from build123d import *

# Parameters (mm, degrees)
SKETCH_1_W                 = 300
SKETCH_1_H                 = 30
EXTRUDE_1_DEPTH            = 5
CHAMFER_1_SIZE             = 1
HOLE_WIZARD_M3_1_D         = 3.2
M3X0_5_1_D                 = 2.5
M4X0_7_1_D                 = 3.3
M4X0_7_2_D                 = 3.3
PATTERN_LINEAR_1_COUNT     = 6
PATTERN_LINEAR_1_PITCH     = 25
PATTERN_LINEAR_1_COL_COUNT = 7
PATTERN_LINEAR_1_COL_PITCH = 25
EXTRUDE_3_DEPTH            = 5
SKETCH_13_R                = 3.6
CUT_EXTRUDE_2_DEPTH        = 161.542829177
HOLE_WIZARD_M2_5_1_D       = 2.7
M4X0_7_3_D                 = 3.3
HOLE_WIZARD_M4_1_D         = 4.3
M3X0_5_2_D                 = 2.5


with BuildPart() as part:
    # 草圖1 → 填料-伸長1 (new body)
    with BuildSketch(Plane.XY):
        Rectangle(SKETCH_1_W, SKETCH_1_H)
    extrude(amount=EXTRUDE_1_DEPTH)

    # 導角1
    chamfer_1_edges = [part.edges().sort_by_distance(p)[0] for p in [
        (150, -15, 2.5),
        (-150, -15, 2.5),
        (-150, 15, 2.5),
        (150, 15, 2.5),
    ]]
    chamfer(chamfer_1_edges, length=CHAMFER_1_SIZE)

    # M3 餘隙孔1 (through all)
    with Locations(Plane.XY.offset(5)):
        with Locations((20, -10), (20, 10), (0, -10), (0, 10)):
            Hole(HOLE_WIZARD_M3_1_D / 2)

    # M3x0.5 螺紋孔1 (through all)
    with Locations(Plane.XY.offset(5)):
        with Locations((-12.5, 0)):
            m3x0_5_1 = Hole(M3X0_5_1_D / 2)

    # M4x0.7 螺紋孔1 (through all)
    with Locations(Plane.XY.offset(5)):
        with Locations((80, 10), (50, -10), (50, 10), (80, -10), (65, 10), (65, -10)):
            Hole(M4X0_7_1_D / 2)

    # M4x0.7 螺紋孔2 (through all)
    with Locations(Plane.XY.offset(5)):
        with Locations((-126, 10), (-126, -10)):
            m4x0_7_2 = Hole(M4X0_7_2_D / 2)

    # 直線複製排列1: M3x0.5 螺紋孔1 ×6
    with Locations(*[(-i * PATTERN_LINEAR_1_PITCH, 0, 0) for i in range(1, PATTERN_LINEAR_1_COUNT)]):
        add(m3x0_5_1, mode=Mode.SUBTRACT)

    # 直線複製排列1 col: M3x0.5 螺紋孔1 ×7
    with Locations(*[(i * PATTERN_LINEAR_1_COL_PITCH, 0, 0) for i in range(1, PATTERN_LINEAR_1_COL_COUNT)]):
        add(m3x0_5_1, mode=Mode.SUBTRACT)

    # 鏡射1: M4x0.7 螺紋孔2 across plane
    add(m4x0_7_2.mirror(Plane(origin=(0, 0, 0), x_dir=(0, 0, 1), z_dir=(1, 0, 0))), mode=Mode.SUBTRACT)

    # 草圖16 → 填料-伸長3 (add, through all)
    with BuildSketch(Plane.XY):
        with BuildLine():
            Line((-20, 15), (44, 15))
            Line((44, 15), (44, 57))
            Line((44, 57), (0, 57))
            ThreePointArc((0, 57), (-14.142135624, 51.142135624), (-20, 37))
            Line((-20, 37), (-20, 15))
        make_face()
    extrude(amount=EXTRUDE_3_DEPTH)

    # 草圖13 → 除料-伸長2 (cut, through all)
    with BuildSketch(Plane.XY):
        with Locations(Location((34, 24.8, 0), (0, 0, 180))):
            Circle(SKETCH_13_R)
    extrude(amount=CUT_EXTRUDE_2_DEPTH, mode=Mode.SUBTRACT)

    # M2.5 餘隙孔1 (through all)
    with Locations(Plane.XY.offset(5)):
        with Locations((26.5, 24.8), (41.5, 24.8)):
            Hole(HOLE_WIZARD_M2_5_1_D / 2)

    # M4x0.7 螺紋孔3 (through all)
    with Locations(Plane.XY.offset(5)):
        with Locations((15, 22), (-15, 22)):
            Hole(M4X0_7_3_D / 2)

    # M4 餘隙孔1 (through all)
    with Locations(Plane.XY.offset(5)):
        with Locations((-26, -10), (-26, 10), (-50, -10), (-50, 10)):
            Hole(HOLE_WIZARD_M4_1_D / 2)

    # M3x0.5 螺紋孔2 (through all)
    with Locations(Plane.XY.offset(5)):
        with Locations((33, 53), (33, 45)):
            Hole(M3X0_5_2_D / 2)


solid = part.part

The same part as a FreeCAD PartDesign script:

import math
import FreeCAD as App
import Part
import Sketcher

V = App.Vector


def edges_at(feature, points):
    """Names of the edges that pass closest to the given points."""
    edges = feature.Shape.Edges
    near = lambda p: min(range(len(edges)), key=lambda i: edges[i].distToShape(Part.Vertex(*p))[0])
    return sorted({f"Edge{near(p) + 1}" for p in points})


def add_polygon(sketch, points):
    """Adds a closed chain of lines whose ends are joined by coincident constraints."""
    first, n = sketch.GeometryCount, len(points)
    for a, b in zip(points, points[1:] + points[:1]):
        sketch.addGeometry(Part.LineSegment(App.Vector(*a, 0), App.Vector(*b, 0)), False)
    for i in range(n):
        sketch.addConstraint(Sketcher.Constraint("Coincident", first + i, 2, first + (i + 1) % n, 1))

doc = App.newDocument("Part")
body = doc.addObject("PartDesign::Body", "Body")

# Sketch on XY plane
sketch1 = body.newObject("Sketcher::SketchObject", "Sketch")
sketch1.AttachmentSupport = (doc.getObject("XY_Plane"), [""])
sketch1.MapMode = "FlatFace"
add_polygon(sketch1, [(-150, 15), (-150, -15), (150, -15), (150, 15)])  # lines 0-3
sketch1.addConstraint([
    Sketcher.Constraint("Vertical", 0),
    Sketcher.Constraint("Horizontal", 1),
    Sketcher.Constraint("Vertical", 2),
    Sketcher.Constraint("Horizontal", 3),
    Sketcher.Constraint("Symmetric", 0, 2, 2, 2, -1, 1),
    Sketcher.Constraint("DistanceX", 1, 1, 1, 2, 300.0),
    Sketcher.Constraint("DistanceY", 0, 2, 0, 1, 30.0),
])
pad1 = body.newObject("PartDesign::Pad", "Pad")
pad1.Profile = sketch1
pad1.Length = 5
doc.recompute()

chamfer = body.newObject("PartDesign::Chamfer", "Chamfer")
chamfer.Base = (pad1, edges_at(pad1, [
    (150, -15, 2.5),
    (-150, -15, 2.5),
    (-150, 15, 2.5),
    (150, 15, 2.5),
]))
chamfer.Size = 1

# Sketch on XY plane
sketch2 = body.newObject("Sketcher::SketchObject", "Sketch001")
sketch2.AttachmentSupport = (doc.getObject("XY_Plane"), [""])
sketch2.MapMode = "FlatFace"
sketch2.AttachmentOffset = App.Placement(V(0, 0, 5), App.Rotation())
sketch2.addGeometry([
    Part.Circle(V(20, -10, 0), V(0, 0, 1), 1.6),
    Part.Circle(V(20, 10, 0), V(0, 0, 1), 1.6),
    Part.Circle(V(0, -10, 0), V(0, 0, 1), 1.6),
    Part.Circle(V(0, 10, 0), V(0, 0, 1), 1.6),
], False)
sketch2.addConstraint([
    Sketcher.Constraint("Equal", 0, 1),
    Sketcher.Constraint("Equal", 1, 2),
    Sketcher.Constraint("Equal", 2, 3),
    Sketcher.Constraint("Symmetric", 2, 3, 3, 3, -1, 1),
    Sketcher.Constraint("Symmetric", 0, 3, 1, 3, -1),
    Sketcher.Constraint("PointOnObject", 2, 3, -2),
    Sketcher.Constraint("Horizontal", 0, 3, 2, 3),
    Sketcher.Constraint("Diameter", 0, 3.2),
    Sketcher.Constraint("DistanceX", -1, 1, 0, 3, 20.0),
    Sketcher.Constraint("DistanceY", 0, 3, -1, 1, 10.0),
])
doc.recompute()
hole = body.newObject("PartDesign::Hole", "Hole")
hole.Profile = sketch2
hole.ThreadType = "None"
hole.Diameter = 3.2
hole.DepthType = "ThroughAll"

# Sketch on XY plane
sketch3 = body.newObject("Sketcher::SketchObject", "Sketch002")
sketch3.AttachmentSupport = (doc.getObject("XY_Plane"), [""])
sketch3.MapMode = "FlatFace"
sketch3.AttachmentOffset = App.Placement(V(0, 0, 5), App.Rotation())
sketch3.addGeometry(Part.Circle(V(-12.5, 0, 0), V(0, 0, 1), 1.2), False)
sketch3.addConstraint([
    Sketcher.Constraint("PointOnObject", 0, 3, -1),
    Sketcher.Constraint("Diameter", 0, 2.5),
    Sketcher.Constraint("DistanceX", 0, 3, -1, 1, 12.5),
])
doc.recompute()
hole2 = body.newObject("PartDesign::Hole", "Hole001")
hole2.Profile = sketch3
hole2.ThreadType = "None"
hole2.Diameter = 2.5
hole2.DepthType = "ThroughAll"

# Sketch on XY plane
sketch4 = body.newObject("Sketcher::SketchObject", "Sketch003")
sketch4.AttachmentSupport = (doc.getObject("XY_Plane"), [""])
sketch4.MapMode = "FlatFace"
sketch4.AttachmentOffset = App.Placement(V(0, 0, 5), App.Rotation())
sketch4.addGeometry([
    Part.Circle(V(80, 10, 0), V(0, 0, 1), 1.6),  # 0
    Part.Circle(V(50, -10, 0), V(0, 0, 1), 1.6),  # 1
    Part.Circle(V(50, 10, 0), V(0, 0, 1), 1.6),  # 2
    Part.Circle(V(80, -10, 0), V(0, 0, 1), 1.6),  # 3
    Part.Circle(V(65, 10, 0), V(0, 0, 1), 1.6),  # 4
    Part.Circle(V(65, -10, 0), V(0, 0, 1), 1.6),  # 5
], False)
sketch4.addConstraint([
    Sketcher.Constraint("Equal", 0, 1),
    Sketcher.Constraint("Equal", 1, 2),
    Sketcher.Constraint("Equal", 2, 3),
    Sketcher.Constraint("Equal", 3, 4),
    Sketcher.Constraint("Equal", 4, 5),
    Sketcher.Constraint("Symmetric", 1, 3, 2, 3, -1),
    Sketcher.Constraint("Symmetric", 0, 3, 3, 3, -1),
    Sketcher.Constraint("Symmetric", 4, 3, 5, 3, -1),
    Sketcher.Constraint("Horizontal", 0, 3, 2, 3),
    Sketcher.Constraint("Horizontal", 2, 3, 4, 3),
    Sketcher.Constraint("Diameter", 0, 3.3),
    Sketcher.Constraint("DistanceX", -1, 1, 0, 3, 80.0),
    Sketcher.Constraint("DistanceY", -1, 1, 0, 3, 10.0),
    Sketcher.Constraint("DistanceX", -1, 1, 1, 3, 50.0),
    Sketcher.Constraint("DistanceX", -1, 1, 4, 3, 65.0),
])
doc.recompute()
hole3 = body.newObject("PartDesign::Hole", "Hole002")
hole3.Profile = sketch4
hole3.ThreadType = "None"
hole3.Diameter = 3.3
hole3.DepthType = "ThroughAll"

# Sketch on XY plane
sketch5 = body.newObject("Sketcher::SketchObject", "Sketch004")
sketch5.AttachmentSupport = (doc.getObject("XY_Plane"), [""])
sketch5.MapMode = "FlatFace"
sketch5.AttachmentOffset = App.Placement(V(0, 0, 5), App.Rotation())
sketch5.addGeometry([
    Part.Circle(V(-126, 10, 0), V(0, 0, 1), 1.6),
    Part.Circle(V(-126, -10, 0), V(0, 0, 1), 1.6),
], False)
sketch5.addConstraint([
    Sketcher.Constraint("Equal", 0, 1),
    Sketcher.Constraint("Symmetric", 0, 3, 1, 3, -1),
    Sketcher.Constraint("Diameter", 0, 3.3),
    Sketcher.Constraint("DistanceX", 0, 3, -1, 1, 126.0),
    Sketcher.Constraint("DistanceY", -1, 1, 0, 3, 10.0),
])
doc.recompute()
hole4 = body.newObject("PartDesign::Hole", "Hole003")
hole4.Profile = sketch5
hole4.ThreadType = "None"
hole4.Diameter = 3.3
hole4.DepthType = "ThroughAll"
doc.recompute()

linearpattern = body.newObject("PartDesign::LinearPattern", "LinearPattern")
linearpattern.Originals = [hole2]
linearpattern.Direction = (doc.getObject("X_Axis"), [""])
linearpattern.Mode = "offset"
linearpattern.Offset = 25
linearpattern.Occurrences = 6
linearpattern.Reversed = True
body.Tip = linearpattern
doc.recompute()

linearpattern2 = body.newObject("PartDesign::LinearPattern", "LinearPattern001")
linearpattern2.Originals = [hole2]
linearpattern2.Direction = (doc.getObject("X_Axis"), [""])
linearpattern2.Mode = "offset"
linearpattern2.Offset = 25
linearpattern2.Occurrences = 7
body.Tip = linearpattern2
doc.recompute()

mirrored = body.newObject("PartDesign::Mirrored", "Mirrored")
mirrored.Originals = [hole4]
mirrored.MirrorPlane = (doc.getObject("YZ_Plane"), [""])
body.Tip = mirrored

# Sketch on XY plane
sketch6 = body.newObject("Sketcher::SketchObject", "Sketch005")
sketch6.AttachmentSupport = (doc.getObject("XY_Plane"), [""])
sketch6.MapMode = "FlatFace"
sketch6.addGeometry([
    Part.LineSegment(V(-20, 15, 0), V(44, 15, 0)),  # 0
    Part.LineSegment(V(44, 15, 0), V(44, 57, 0)),  # 1
    Part.LineSegment(V(44, 57, 0), V(0, 57, 0)),  # 2
    Part.ArcOfCircle(Part.Circle(V(0, 37, 0), V(0, 0, 1), 20), math.radians(90), math.radians(180)),  # 3
    Part.LineSegment(V(-20, 37, 0), V(-20, 15, 0)),  # 4
], False)
sketch6.addConstraint([
    Sketcher.Constraint("Coincident", 0, 2, 1, 1),
    Sketcher.Constraint("Coincident", 1, 2, 2, 1),
    Sketcher.Constraint("Tangent", 2, 2, 3, 1),
    Sketcher.Constraint("Tangent", 3, 2, 4, 1),
    Sketcher.Constraint("Coincident", 4, 2, 0, 1),
    Sketcher.Constraint("Horizontal", 0),
    Sketcher.Constraint("Vertical", 1),
    Sketcher.Constraint("Horizontal", 2),
    Sketcher.Constraint("Vertical", 4),
    Sketcher.Constraint("PointOnObject", 3, 3, -2),
    Sketcher.Constraint("Radius", 3, 20.0),
    Sketcher.Constraint("DistanceX", 0, 1, 0, 2, 64.0),
    Sketcher.Constraint("DistanceY", 1, 1, 1, 2, 42.0),
    Sketcher.Constraint("DistanceY", -1, 1, 3, 3, 37.0),
])
pad2 = body.newObject("PartDesign::Pad", "Pad001")
pad2.Profile = sketch6
pad2.Length = 5

# Sketch on XY plane
sketch7 = body.newObject("Sketcher::SketchObject", "Sketch006")
sketch7.AttachmentSupport = (doc.getObject("XY_Plane"), [""])
sketch7.MapMode = "FlatFace"
sketch7.addGeometry(Part.Circle(V(34, 24.8, 0), V(0, 0, 1), 3.6), False)
sketch7.addConstraint([
    Sketcher.Constraint("Diameter", 0, 7.2),
    Sketcher.Constraint("DistanceX", -1, 1, 0, 3, 34.0),
    Sketcher.Constraint("DistanceY", -1, 1, 0, 3, 24.8),
])
pocket1 = body.newObject("PartDesign::Pocket", "Pocket")
pocket1.Profile = sketch7
pocket1.Type = "ThroughAll"
pocket1.Reversed = True

# Sketch on XY plane
sketch8 = body.newObject("Sketcher::SketchObject", "Sketch007")
sketch8.AttachmentSupport = (doc.getObject("XY_Plane"), [""])
sketch8.MapMode = "FlatFace"
sketch8.AttachmentOffset = App.Placement(V(0, 0, 5), App.Rotation())
sketch8.addGeometry([
    Part.Circle(V(26.5, 24.8, 0), V(0, 0, 1), 1.4),
    Part.Circle(V(41.5, 24.8, 0), V(0, 0, 1), 1.4),
], False)
sketch8.addConstraint([
    Sketcher.Constraint("Equal", 0, 1),
    Sketcher.Constraint("Horizontal", 0, 3, 1, 3),
    Sketcher.Constraint("Diameter", 0, 2.7),
    Sketcher.Constraint("DistanceX", 0, 3, 1, 3, 15.0),
    Sketcher.Constraint("DistanceX", -1, 1, 0, 3, 26.5),
    Sketcher.Constraint("DistanceY", -1, 1, 0, 3, 24.8),
])
doc.recompute()
hole5 = body.newObject("PartDesign::Hole", "Hole004")
hole5.Profile = sketch8
hole5.ThreadType = "None"
hole5.Diameter = 2.7
hole5.DepthType = "ThroughAll"

# Sketch on XY plane
sketch9 = body.newObject("Sketcher::SketchObject", "Sketch008")
sketch9.AttachmentSupport = (doc.getObject("XY_Plane"), [""])
sketch9.MapMode = "FlatFace"
sketch9.AttachmentOffset = App.Placement(V(0, 0, 5), App.Rotation())
sketch9.addGeometry([
    Part.Circle(V(15, 22, 0), V(0, 0, 1), 1.6),
    Part.Circle(V(-15, 22, 0), V(0, 0, 1), 1.6),
], False)
sketch9.addConstraint([
    Sketcher.Constraint("Equal", 0, 1),
    Sketcher.Constraint("Symmetric", 0, 3, 1, 3, -2),
    Sketcher.Constraint("Diameter", 0, 3.3),
    Sketcher.Constraint("DistanceX", -1, 1, 0, 3, 15.0),
    Sketcher.Constraint("DistanceY", -1, 1, 0, 3, 22.0),
])
doc.recompute()
hole6 = body.newObject("PartDesign::Hole", "Hole005")
hole6.Profile = sketch9
hole6.ThreadType = "None"
hole6.Diameter = 3.3
hole6.DepthType = "ThroughAll"

# Sketch on XY plane
sketch10 = body.newObject("Sketcher::SketchObject", "Sketch009")
sketch10.AttachmentSupport = (doc.getObject("XY_Plane"), [""])
sketch10.MapMode = "FlatFace"
sketch10.AttachmentOffset = App.Placement(V(0, 0, 5), App.Rotation())
sketch10.addGeometry([
    Part.Circle(V(-26, -10, 0), V(0, 0, 1), 2.1),
    Part.Circle(V(-26, 10, 0), V(0, 0, 1), 2.1),
    Part.Circle(V(-50, -10, 0), V(0, 0, 1), 2.1),
    Part.Circle(V(-50, 10, 0), V(0, 0, 1), 2.1),
], False)
sketch10.addConstraint([
    Sketcher.Constraint("Equal", 0, 1),
    Sketcher.Constraint("Equal", 1, 2),
    Sketcher.Constraint("Equal", 2, 3),
    Sketcher.Constraint("Symmetric", 0, 3, 1, 3, -1),
    Sketcher.Constraint("Symmetric", 2, 3, 3, 3, -1),
    Sketcher.Constraint("Horizontal", 0, 3, 2, 3),
    Sketcher.Constraint("Diameter", 0, 4.3),
    Sketcher.Constraint("DistanceX", 0, 3, -1, 1, 26.0),
    Sketcher.Constraint("DistanceY", 0, 3, -1, 1, 10.0),
    Sketcher.Constraint("DistanceX", 2, 3, -1, 1, 50.0),
])
doc.recompute()
hole7 = body.newObject("PartDesign::Hole", "Hole006")
hole7.Profile = sketch10
hole7.ThreadType = "None"
hole7.Diameter = 4.3
hole7.DepthType = "ThroughAll"

# Sketch on XY plane
sketch11 = body.newObject("Sketcher::SketchObject", "Sketch010")
sketch11.AttachmentSupport = (doc.getObject("XY_Plane"), [""])
sketch11.MapMode = "FlatFace"
sketch11.AttachmentOffset = App.Placement(V(0, 0, 5), App.Rotation())
sketch11.addGeometry([
    Part.Circle(V(33, 53, 0), V(0, 0, 1), 1.2),
    Part.Circle(V(33, 45, 0), V(0, 0, 1), 1.2),
], False)
sketch11.addConstraint([
    Sketcher.Constraint("Equal", 0, 1),
    Sketcher.Constraint("Vertical", 0, 3, 1, 3),
    Sketcher.Constraint("Diameter", 0, 2.5),
    Sketcher.Constraint("DistanceX", -1, 1, 0, 3, 33.0),
    Sketcher.Constraint("DistanceY", -1, 1, 0, 3, 53.0),
    Sketcher.Constraint("DistanceY", -1, 1, 1, 3, 45.0),
])
doc.recompute()
hole8 = body.newObject("PartDesign::Hole", "Hole007")
hole8.Profile = sketch11
hole8.ThreadType = "None"
hole8.Diameter = 2.5
hole8.DepthType = "ThroughAll"

doc.recompute()
